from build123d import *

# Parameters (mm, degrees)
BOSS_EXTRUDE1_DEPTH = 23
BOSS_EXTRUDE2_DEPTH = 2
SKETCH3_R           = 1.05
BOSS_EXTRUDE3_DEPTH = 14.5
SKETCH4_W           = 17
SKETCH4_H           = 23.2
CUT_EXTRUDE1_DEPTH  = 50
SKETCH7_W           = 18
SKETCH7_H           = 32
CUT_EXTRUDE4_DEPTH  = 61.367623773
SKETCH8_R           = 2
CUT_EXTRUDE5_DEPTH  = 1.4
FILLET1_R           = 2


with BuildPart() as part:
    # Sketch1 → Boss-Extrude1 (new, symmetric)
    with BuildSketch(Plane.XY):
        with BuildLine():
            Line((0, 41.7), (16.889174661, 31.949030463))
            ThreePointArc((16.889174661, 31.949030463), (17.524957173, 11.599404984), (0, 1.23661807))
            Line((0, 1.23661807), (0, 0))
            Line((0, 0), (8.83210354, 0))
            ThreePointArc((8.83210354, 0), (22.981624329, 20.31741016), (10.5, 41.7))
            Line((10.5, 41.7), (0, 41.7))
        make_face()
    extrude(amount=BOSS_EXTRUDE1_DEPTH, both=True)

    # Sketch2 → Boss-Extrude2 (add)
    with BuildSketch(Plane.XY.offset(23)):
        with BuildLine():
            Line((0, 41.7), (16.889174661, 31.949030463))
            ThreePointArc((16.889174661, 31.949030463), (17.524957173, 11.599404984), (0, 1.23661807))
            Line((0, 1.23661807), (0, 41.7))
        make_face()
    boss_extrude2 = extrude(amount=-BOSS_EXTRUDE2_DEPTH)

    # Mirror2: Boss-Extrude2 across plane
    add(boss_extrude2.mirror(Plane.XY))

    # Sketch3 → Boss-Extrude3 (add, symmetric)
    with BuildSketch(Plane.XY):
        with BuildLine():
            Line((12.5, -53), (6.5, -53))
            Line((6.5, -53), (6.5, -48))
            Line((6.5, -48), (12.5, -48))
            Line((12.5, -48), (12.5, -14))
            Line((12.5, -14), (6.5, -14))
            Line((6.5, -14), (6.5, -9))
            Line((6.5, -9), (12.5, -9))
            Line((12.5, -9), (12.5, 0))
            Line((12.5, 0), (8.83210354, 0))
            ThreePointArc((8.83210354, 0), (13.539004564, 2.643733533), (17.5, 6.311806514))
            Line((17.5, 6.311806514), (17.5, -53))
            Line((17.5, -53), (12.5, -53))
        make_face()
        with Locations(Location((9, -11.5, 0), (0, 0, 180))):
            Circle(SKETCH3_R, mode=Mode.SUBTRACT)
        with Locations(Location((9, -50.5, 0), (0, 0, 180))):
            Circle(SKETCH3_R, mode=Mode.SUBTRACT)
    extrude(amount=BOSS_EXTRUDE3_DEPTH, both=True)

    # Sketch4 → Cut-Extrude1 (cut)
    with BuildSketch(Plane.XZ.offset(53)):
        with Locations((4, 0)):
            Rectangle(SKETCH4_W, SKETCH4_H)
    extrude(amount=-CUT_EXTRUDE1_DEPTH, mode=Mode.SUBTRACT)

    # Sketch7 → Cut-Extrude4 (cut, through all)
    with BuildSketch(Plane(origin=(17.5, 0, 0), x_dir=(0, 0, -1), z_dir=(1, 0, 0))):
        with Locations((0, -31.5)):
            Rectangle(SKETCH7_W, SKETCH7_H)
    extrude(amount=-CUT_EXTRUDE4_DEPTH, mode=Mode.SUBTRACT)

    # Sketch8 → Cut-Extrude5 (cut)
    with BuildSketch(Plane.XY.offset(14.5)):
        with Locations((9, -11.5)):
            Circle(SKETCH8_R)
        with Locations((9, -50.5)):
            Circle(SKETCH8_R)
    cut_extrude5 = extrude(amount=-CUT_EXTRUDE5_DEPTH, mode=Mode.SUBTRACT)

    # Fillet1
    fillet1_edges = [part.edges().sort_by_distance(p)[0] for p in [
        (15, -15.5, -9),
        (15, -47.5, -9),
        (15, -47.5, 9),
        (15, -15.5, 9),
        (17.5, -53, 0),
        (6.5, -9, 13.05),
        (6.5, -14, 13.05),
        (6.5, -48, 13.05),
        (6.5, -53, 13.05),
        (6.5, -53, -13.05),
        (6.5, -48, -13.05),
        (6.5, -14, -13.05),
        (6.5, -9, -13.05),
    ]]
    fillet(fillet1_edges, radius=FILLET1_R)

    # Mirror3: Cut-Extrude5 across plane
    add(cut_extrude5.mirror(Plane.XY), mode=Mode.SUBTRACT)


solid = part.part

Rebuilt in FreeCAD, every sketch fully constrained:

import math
import FreeCAD as App
import Part
import Sketcher

V = App.Vector
Q = App.Units.Quantity


def edges_at(feature, points):
    """Names of the edges that pass closest to the given points."""
    edges = feature.Shape.Edges
    near = lambda p: min(range(len(edges)), key=lambda i: edges[i].distToShape(Part.Vertex(*p))[0])
    return sorted({f"Edge{near(p) + 1}" for p in points})


def add_polygon(sketch, points):
    """Adds a closed chain of lines whose ends are joined by coincident constraints."""
    first, n = sketch.GeometryCount, len(points)
    for a, b in zip(points, points[1:] + points[:1]):
        sketch.addGeometry(Part.LineSegment(App.Vector(*a, 0), App.Vector(*b, 0)), False)
    for i in range(n):
        sketch.addConstraint(Sketcher.Constraint("Coincident", first + i, 2, first + (i + 1) % n, 1))

doc = App.newDocument("Part")
params = doc.addObject("Spreadsheet::Sheet", "Params")
for row, (alias, value) in enumerate([
    ("sketch1_radius", "20 mm"),
    ("sketch1_radius2", "23 mm"),
    ("sketch1_width", "10.5 mm"),
    ("pad1_length", "46 mm"),
    ("sketch2_radius", "20 mm"),
    ("pad2_length", "2 mm"),
    ("sketch3_radius", "23 mm"),
    ("sketch3_diameter", "2.1 mm"),
    ("sketch3_width", "11 mm"),
    ("sketch3_width2", "6 mm"),
    ("sketch3_height", "5 mm"),
    ("pad3_length", "29 mm"),
    ("sketch4_width", "17 mm"),
    ("sketch4_height", "23.2 mm"),
    ("pocket1_length", "50 mm"),
    ("sketch5_width", "32 mm"),
    ("sketch5_height", "18 mm"),
    ("sketch6_diameter", "4 mm"),
    ("pocket3_length", "1.4 mm"),
    ("fillet_radius", "2 mm"),
], start=1):
    params.set(f"A{row}", alias)
    params.set(f"B{row}", "=" + value)
    params.setAlias(f"B{row}", alias)

body = doc.addObject("PartDesign::Body", "Body")

sketch1 = body.newObject("Sketcher::SketchObject", "Sketch")
sketch1.AttachmentSupport = (doc.getObject("XY_Plane"), [""])
sketch1.MapMode = "FlatFace"
sketch1.addGeometry(Part.LineSegment(V(0, 41.7, 0), V(16.9, 31.9, 0)), False)
sketch1.addGeometry(Part.ArcOfCircle(Part.Circle(V(0, 21.2, 0), V(0, 0, 1), 20), math.radians(-90), math.radians(32)), False)
sketch1.addGeometry(Part.LineSegment(V(0, 1.2, 0), V(0, 0, 0)), False)
sketch1.addGeometry(Part.LineSegment(V(0, 0, 0), V(8.8, 0, 0)), False)
sketch1.addGeometry(Part.ArcOfCircle(Part.Circle(V(0, 21.2, 0), V(0, 0, 1), 23), math.radians(-67), math.radians(63)), False)
sketch1.addGeometry(Part.LineSegment(V(10.5, 41.7, 0), V(0, 41.7, 0)), False)
sketch1.addConstraint(Sketcher.Constraint("Coincident", 0, 2, 1, 2))
sketch1.addConstraint(Sketcher.Constraint("Coincident", 1, 1, 2, 1))
sketch1.addConstraint(Sketcher.Constraint("Coincident", 2, 2, 3, 1))
sketch1.addConstraint(Sketcher.Constraint("Coincident", 3, 2, 4, 1))
sketch1.addConstraint(Sketcher.Constraint("Coincident", 4, 2, 5, 1))
sketch1.addConstraint(Sketcher.Constraint("Coincident", 5, 2, 0, 1))
sketch1.addConstraint(Sketcher.Constraint("Vertical", 2))
sketch1.addConstraint(Sketcher.Constraint("Horizontal", 3))
sketch1.addConstraint(Sketcher.Constraint("Horizontal", 5))
sketch1.addConstraint(Sketcher.Constraint("Coincident", 2, 2, -1, 1))
sketch1.addConstraint(Sketcher.Constraint("Coincident", 4, 3, 1, 3))
sketch1.addConstraint(Sketcher.Constraint("PointOnObject", 1, 3, -2))
sketch1.addConstraint(Sketcher.Constraint("PointOnObject", 5, 2, -2))
sketch1.addConstraint(Sketcher.Constraint("Radius", 1, Q("20 mm")))
sketch1.addConstraint(Sketcher.Constraint("Radius", 4, Q("23 mm")))
sketch1.addConstraint(Sketcher.Constraint("Angle", 0, Q("-30 deg")))
sketch1.addConstraint(Sketcher.Constraint("DistanceX", 5, 2, 5, 1, Q("10.5 mm")))
sketch1.addConstraint(Sketcher.Constraint("DistanceY", -1, 1, 4, 2, Q("41.7 mm")))
sketch1.setExpression("Constraints[13]", "Params.sketch1_radius")
sketch1.setExpression("Constraints[14]", "Params.sketch1_radius2")
sketch1.setExpression("Constraints[16]", "Params.sketch1_width")
pad1 = body.newObject("PartDesign::Pad", "Pad")
pad1.Profile = sketch1
pad1.setExpression("Length", "Params.pad1_length")
pad1.Midplane = True

sketch2 = body.newObject("Sketcher::SketchObject", "Sketch001")
sketch2.AttachmentSupport = (doc.getObject("XY_Plane"), [""])
sketch2.MapMode = "FlatFace"
sketch2.AttachmentOffset = App.Placement(V(0, 0, 23), App.Rotation())
sketch2.addGeometry(Part.LineSegment(V(17, 32, 0), V(0, 42, 0)), False)
sketch2.addGeometry(Part.LineSegment(V(0, 42, 0), V(0, 1, 0)), False)
sketch2.addGeometry(Part.ArcOfCircle(Part.Circle(V(0, 21, 0), V(0, 0, 1), 20), math.radians(-90), math.radians(32)), False)
sketch2.addConstraint(Sketcher.Constraint("Coincident", 0, 2, 1, 1))
sketch2.addConstraint(Sketcher.Constraint("Coincident", 1, 2, 2, 1))
sketch2.addConstraint(Sketcher.Constraint("Coincident", 2, 2, 0, 1))
sketch2.addConstraint(Sketcher.Constraint("Vertical", 1))
sketch2.addConstraint(Sketcher.Constraint("PointOnObject", 2, 3, -2))
sketch2.addConstraint(Sketcher.Constraint("PointOnObject", 0, 2, -2))
sketch2.addConstraint(Sketcher.Constraint("Radius", 2, Q("20 mm")))
sketch2.addConstraint(Sketcher.Constraint("Angle", 0, Q("150 deg")))
sketch2.addConstraint(Sketcher.Constraint("DistanceY", -1, 1, 0, 2, Q("41.7 mm")))
sketch2.addConstraint(Sketcher.Constraint("DistanceY", 1, 2, 1, 1, Q("40.463382 mm")))
sketch2.setExpression("Constraints[6]", "Params.sketch2_radius")
pad2 = body.newObject("PartDesign::Pad", "Pad001")
pad2.Profile = sketch2
pad2.setExpression("Length", "Params.pad2_length")
pad2.Reversed = True
doc.recompute()

mirrored = body.newObject("PartDesign::Mirrored", "Mirrored")
mirrored.Originals = [pad2]
mirrored.MirrorPlane = (doc.getObject("XY_Plane"), [""])
body.Tip = mirrored

sketch3 = body.newObject("Sketcher::SketchObject", "Sketch002")
sketch3.AttachmentSupport = (doc.getObject("XY_Plane"), [""])
sketch3.MapMode = "FlatFace"
sketch3.addGeometry(Part.LineSegment(V(6.5, -48, 0), V(6.5, -53, 0)), False)
sketch3.addGeometry(Part.LineSegment(V(6.5, -53, 0), V(17.5, -53, 0)), False)
sketch3.addGeometry(Part.LineSegment(V(17.5, -53, 0), V(17.5, 6.3, 0)), False)
sketch3.addGeometry(Part.ArcOfCircle(Part.Circle(V(0, 21.2, 0), V(0, 0, 1), 23), math.radians(-67), math.radians(-40)), False)
sketch3.addGeometry(Part.LineSegment(V(8.8, 0, 0), V(12.5, 0, 0)), False)
sketch3.addGeometry(Part.LineSegment(V(12.5, 0, 0), V(12.5, -9, 0)), False)
sketch3.addGeometry(Part.LineSegment(V(12.5, -9, 0), V(6.5, -9, 0)), False)
sketch3.addGeometry(Part.LineSegment(V(6.5, -9, 0), V(6.5, -14, 0)), False)
sketch3.addGeometry(Part.LineSegment(V(6.5, -14, 0), V(12.5, -14, 0)), False)
sketch3.addGeometry(Part.LineSegment(V(12.5, -14, 0), V(12.5, -48, 0)), False)
sketch3.addGeometry(Part.LineSegment(V(12.5, -48, 0), V(6.5, -48, 0)), False)
sketch3.addGeometry(Part.Circle(V(9, -50.5, 0), V(0, 0, 1), 1.1), False)
sketch3.addGeometry(Part.Circle(V(9, -11.5, 0), V(0, 0, 1), 1.1), False)
sketch3.addConstraint(Sketcher.Constraint("Coincident", 0, 2, 1, 1))
sketch3.addConstraint(Sketcher.Constraint("Coincident", 1, 2, 2, 1))
sketch3.addConstraint(Sketcher.Constraint("Coincident", 2, 2, 3, 2))
sketch3.addConstraint(Sketcher.Constraint("Coincident", 3, 1, 4, 1))
sketch3.addConstraint(Sketcher.Constraint("Coincident", 4, 2, 5, 1))
sketch3.addConstraint(Sketcher.Constraint("Coincident", 5, 2, 6, 1))
sketch3.addConstraint(Sketcher.Constraint("Coincident", 6, 2, 7, 1))
sketch3.addConstraint(Sketcher.Constraint("Coincident", 7, 2, 8, 1))
sketch3.addConstraint(Sketcher.Constraint("Coincident", 8, 2, 9, 1))
sketch3.addConstraint(Sketcher.Constraint("Coincident", 9, 2, 10, 1))
sketch3.addConstraint(Sketcher.Constraint("Coincident", 10, 2, 0, 1))
sketch3.addConstraint(Sketcher.Constraint("Vertical", 0))
sketch3.addConstraint(Sketcher.Constraint("Horizontal", 1))
sketch3.addConstraint(Sketcher.Constraint("Vertical", 2))
sketch3.addConstraint(Sketcher.Constraint("Horizontal", 4))
sketch3.addConstraint(Sketcher.Constraint("Vertical", 5))
sketch3.addConstraint(Sketcher.Constraint("Horizontal", 6))
sketch3.addConstraint(Sketcher.Constraint("Vertical", 7))
sketch3.addConstraint(Sketcher.Constraint("Horizontal", 8))
sketch3.addConstraint(Sketcher.Constraint("Vertical", 9))
sketch3.addConstraint(Sketcher.Constraint("Horizontal", 10))
sketch3.addConstraint(Sketcher.Constraint("Equal", 11, 12))
sketch3.addConstraint(Sketcher.Constraint("PointOnObject", 3, 3, -2))
sketch3.addConstraint(Sketcher.Constraint("PointOnObject", 3, 1, -1))
sketch3.addConstraint(Sketcher.Constraint("Vertical", 11, 3, 12, 3))
sketch3.addConstraint(Sketcher.Constraint("Vertical", 0, 2, 6, 2))
sketch3.addConstraint(Sketcher.Constraint("Vertical", 5, 2, 8, 2))
sketch3.addConstraint(Sketcher.Constraint("Equal", 0, 7))
sketch3.addConstraint(Sketcher.Constraint("Radius", 3, Q("23 mm")))
sketch3.addConstraint(Sketcher.Constraint("Diameter", 11, Q("2.1 mm")))
sketch3.addConstraint(Sketcher.Constraint("DistanceX", 1, 1, 1, 2, Q("11 mm")))
sketch3.addConstraint(Sketcher.Constraint("DistanceX", 6, 2, 6, 1, Q("6 mm")))
sketch3.addConstraint(Sketcher.Constraint("DistanceY", 0, 2, 0, 1, Q("5 mm")))
sketch3.addConstraint(Sketcher.Constraint("DistanceY", 5, 2, 5, 1, Q("9 mm")))
sketch3.addConstraint(Sketcher.Constraint("DistanceY", 9, 2, 9, 1, Q("34 mm")))
sketch3.addConstraint(Sketcher.Constraint("DistanceX", -1, 1, 11, 3, Q("9 mm")))
sketch3.addConstraint(Sketcher.Constraint("DistanceY", 11, 3, 12, 3, Q("39 mm")))
sketch3.addConstraint(Sketcher.Constraint("DistanceY", 11, 3, -1, 1, Q("50.5 mm")))
sketch3.addConstraint(Sketcher.Constraint("DistanceX", -1, 1, 0, 2, Q("6.5 mm")))
sketch3.addConstraint(Sketcher.Constraint("DistanceX", 4, 1, 4, 2, Q("3.667896 mm")))
sketch3.setExpression("Constraints[28]", "Params.sketch3_radius")
sketch3.setExpression("Constraints[29]", "Params.sketch3_diameter")
sketch3.setExpression("Constraints[30]", "Params.sketch3_width")
sketch3.setExpression("Constraints[31]", "Params.sketch3_width2")
sketch3.setExpression("Constraints[32]", "Params.sketch3_height")
pad3 = body.newObject("PartDesign::Pad", "Pad002")
pad3.Profile = sketch3
pad3.setExpression("Length", "Params.pad3_length")
pad3.Midplane = True

sketch4 = body.newObject("Sketcher::SketchObject", "Sketch003")
sketch4.AttachmentSupport = (doc.getObject("XZ_Plane"), [""])
sketch4.MapMode = "FlatFace"
sketch4.AttachmentOffset = App.Placement(V(0, 0, 53), App.Rotation())
add_polygon(sketch4, [(-4, 12), (-4, -12), (12, -12), (12, 12)])
sketch4.addConstraint(Sketcher.Constraint("Vertical", 0))
sketch4.addConstraint(Sketcher.Constraint("Horizontal", 1))
sketch4.addConstraint(Sketcher.Constraint("Vertical", 2))
sketch4.addConstraint(Sketcher.Constraint("Horizontal", 3))
sketch4.addConstraint(Sketcher.Constraint("DistanceX", 1, 1, 1, 2, Q("17 mm")))
sketch4.addConstraint(Sketcher.Constraint("DistanceY", 0, 2, 0, 1, Q("23.2 mm")))
sketch4.addConstraint(Sketcher.Constraint("DistanceX", 0, 2, -1, 1, Q("4.5 mm")))
sketch4.addConstraint(Sketcher.Constraint("DistanceY", 0, 2, -1, 1, Q("11.6 mm")))
sketch4.setExpression("Constraints[8]", "Params.sketch4_width")
sketch4.setExpression("Constraints[9]", "Params.sketch4_height")
pocket1 = body.newObject("PartDesign::Pocket", "Pocket")
pocket1.Profile = sketch4
pocket1.setExpression("Length", "Params.pocket1_length")

sketch5 = body.newObject("Sketcher::SketchObject", "Sketch004")
sketch5.AttachmentSupport = (doc.getObject("YZ_Plane"), [""])
sketch5.MapMode = "FlatFace"
sketch5.AttachmentOffset = App.Placement(V(0, 0, 17.5), App.Rotation())
add_polygon(sketch5, [(-16, 9), (-48, 9), (-48, -9), (-16, -9)])
sketch5.addConstraint(Sketcher.Constraint("Horizontal", 0))
sketch5.addConstraint(Sketcher.Constraint("Vertical", 1))
sketch5.addConstraint(Sketcher.Constraint("Horizontal", 2))
sketch5.addConstraint(Sketcher.Constraint("Vertical", 3))
sketch5.addConstraint(Sketcher.Constraint("DistanceX", 0, 2, 0, 1, Q("32 mm")))
sketch5.addConstraint(Sketcher.Constraint("DistanceY", 1, 2, 1, 1, Q("18 mm")))
sketch5.addConstraint(Sketcher.Constraint("DistanceY", -1, 1, 0, 2, Q("9 mm")))
sketch5.addConstraint(Sketcher.Constraint("DistanceX", 0, 2, -1, 1, Q("47.5 mm")))
sketch5.setExpression("Constraints[8]", "Params.sketch5_width")
sketch5.setExpression("Constraints[9]", "Params.sketch5_height")
pocket2 = body.newObject("PartDesign::Pocket", "Pocket001")
pocket2.Profile = sketch5
pocket2.Type = "ThroughAll"

sketch6 = body.newObject("Sketcher::SketchObject", "Sketch005")
sketch6.AttachmentSupport = (doc.getObject("XY_Plane"), [""])
sketch6.MapMode = "FlatFace"
sketch6.AttachmentOffset = App.Placement(V(0, 0, 14.5), App.Rotation())
sketch6.addGeometry(Part.Circle(V(9, -11.5, 0), V(0, 0, 1), 2), False)
sketch6.addGeometry(Part.Circle(V(9, -50.5, 0), V(0, 0, 1), 2), False)
sketch6.addConstraint(Sketcher.Constraint("Equal", 0, 1))
sketch6.addConstraint(Sketcher.Constraint("Vertical", 0, 3, 1, 3))
sketch6.addConstraint(Sketcher.Constraint("Diameter", 0, Q("4 mm")))
sketch6.addConstraint(Sketcher.Constraint("DistanceX", -1, 1, 0, 3, Q("9 mm")))
sketch6.addConstraint(Sketcher.Constraint("DistanceY", 1, 3, 0, 3, Q("39 mm")))
sketch6.addConstraint(Sketcher.Constraint("DistanceY", 0, 3, -1, 1, Q("11.5 mm")))
sketch6.setExpression("Constraints[2]", "Params.sketch6_diameter")
pocket3 = body.newObject("PartDesign::Pocket", "Pocket002")
pocket3.Profile = sketch6
pocket3.setExpression("Length", "Params.pocket3_length")
doc.recompute()

fillet = body.newObject("PartDesign::Fillet", "Fillet")
fillet.Base = (pocket3, edges_at(pocket3, [
    (15, -15.5, -9),
    (15, -47.5, -9),
    (15, -47.5, 9),
    (15, -15.5, 9),
    (17.5, -53, 0),
    (6.5, -9, 13.05),
    (6.5, -14, 13.05),
    (6.5, -48, 13.05),
    (6.5, -53, 13.05),
    (6.5, -53, -13.05),
    (6.5, -48, -13.05),
    (6.5, -14, -13.05),
    (6.5, -9, -13.05),
]))
fillet.setExpression("Radius", "Params.fillet_radius")
doc.recompute()

mirrored2 = body.newObject("PartDesign::Mirrored", "Mirrored001")
mirrored2.Originals = [pocket3]
mirrored2.MirrorPlane = (doc.getObject("XY_Plane"), [""])
body.Tip = mirrored2

doc.recompute()
